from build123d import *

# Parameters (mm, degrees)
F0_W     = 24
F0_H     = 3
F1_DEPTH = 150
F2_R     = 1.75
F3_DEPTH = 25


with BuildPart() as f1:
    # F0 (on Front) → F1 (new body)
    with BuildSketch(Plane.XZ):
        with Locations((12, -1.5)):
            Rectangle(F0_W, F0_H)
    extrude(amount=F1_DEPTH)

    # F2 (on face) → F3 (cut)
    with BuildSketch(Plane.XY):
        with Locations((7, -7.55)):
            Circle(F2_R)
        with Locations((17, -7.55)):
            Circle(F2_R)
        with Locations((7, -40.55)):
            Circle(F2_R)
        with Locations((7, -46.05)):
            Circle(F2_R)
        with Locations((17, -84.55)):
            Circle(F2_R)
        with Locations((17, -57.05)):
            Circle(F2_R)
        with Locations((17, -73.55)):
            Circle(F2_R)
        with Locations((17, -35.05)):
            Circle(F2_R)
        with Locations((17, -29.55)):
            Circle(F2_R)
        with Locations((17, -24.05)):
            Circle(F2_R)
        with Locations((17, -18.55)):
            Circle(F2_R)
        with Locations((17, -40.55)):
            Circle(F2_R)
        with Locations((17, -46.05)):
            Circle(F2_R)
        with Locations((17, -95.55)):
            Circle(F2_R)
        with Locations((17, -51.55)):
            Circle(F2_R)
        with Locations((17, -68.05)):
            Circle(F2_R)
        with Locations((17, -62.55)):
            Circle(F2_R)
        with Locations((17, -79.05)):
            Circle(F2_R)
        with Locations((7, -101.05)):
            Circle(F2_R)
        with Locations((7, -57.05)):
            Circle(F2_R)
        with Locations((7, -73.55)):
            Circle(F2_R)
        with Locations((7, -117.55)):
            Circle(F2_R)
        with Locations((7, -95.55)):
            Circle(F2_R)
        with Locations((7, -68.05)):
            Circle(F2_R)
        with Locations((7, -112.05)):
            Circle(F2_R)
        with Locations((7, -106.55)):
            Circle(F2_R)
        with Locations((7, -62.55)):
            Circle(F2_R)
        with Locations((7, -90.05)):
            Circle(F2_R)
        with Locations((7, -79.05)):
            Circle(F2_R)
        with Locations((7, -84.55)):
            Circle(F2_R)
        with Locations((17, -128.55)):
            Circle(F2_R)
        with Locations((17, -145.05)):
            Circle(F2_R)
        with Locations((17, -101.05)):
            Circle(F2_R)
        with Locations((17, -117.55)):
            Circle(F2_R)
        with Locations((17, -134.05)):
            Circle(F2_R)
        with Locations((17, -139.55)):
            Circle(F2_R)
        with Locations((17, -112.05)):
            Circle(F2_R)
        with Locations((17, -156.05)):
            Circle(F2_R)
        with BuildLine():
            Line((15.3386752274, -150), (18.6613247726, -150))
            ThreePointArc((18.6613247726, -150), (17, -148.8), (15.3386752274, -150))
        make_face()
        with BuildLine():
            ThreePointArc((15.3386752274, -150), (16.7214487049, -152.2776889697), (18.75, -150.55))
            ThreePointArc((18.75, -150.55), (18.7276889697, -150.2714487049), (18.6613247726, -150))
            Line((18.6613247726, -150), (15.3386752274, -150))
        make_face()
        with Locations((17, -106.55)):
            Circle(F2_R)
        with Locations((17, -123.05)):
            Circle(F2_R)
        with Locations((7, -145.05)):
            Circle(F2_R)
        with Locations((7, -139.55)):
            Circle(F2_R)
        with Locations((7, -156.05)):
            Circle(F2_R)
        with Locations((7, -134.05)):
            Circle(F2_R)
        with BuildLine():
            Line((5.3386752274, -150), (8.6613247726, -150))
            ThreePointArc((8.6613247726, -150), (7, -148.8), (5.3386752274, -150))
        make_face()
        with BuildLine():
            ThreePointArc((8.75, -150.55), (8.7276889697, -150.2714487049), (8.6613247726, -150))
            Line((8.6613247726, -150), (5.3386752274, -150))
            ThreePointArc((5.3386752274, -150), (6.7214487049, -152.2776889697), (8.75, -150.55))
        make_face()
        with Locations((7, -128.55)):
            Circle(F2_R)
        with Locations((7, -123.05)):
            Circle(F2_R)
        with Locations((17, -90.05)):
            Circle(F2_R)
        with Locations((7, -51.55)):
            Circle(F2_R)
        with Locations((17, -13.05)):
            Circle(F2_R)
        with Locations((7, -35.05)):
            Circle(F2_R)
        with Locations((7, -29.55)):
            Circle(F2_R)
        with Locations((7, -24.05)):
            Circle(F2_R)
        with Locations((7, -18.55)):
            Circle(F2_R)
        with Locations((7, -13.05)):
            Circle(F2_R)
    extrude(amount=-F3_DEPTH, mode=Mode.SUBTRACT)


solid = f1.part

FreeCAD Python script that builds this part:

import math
import FreeCAD as App
import Part
import Sketcher

V = App.Vector

doc = App.newDocument("Part")
body = doc.addObject("PartDesign::Body", "Body")

# Sketch on XZ plane
sketch1 = body.newObject("Sketcher::SketchObject", "Sketch")
sketch1.AttachmentSupport = (doc.getObject("XZ_Plane"), [""])
sketch1.MapMode = "FlatFace"
sketch1.addGeometry([
    Part.LineSegment(V(0, 0, 0), V(0, -3, 0)),
    Part.LineSegment(V(0, -3, 0), V(24, -3, 0)),
    Part.LineSegment(V(24, -3, 0), V(24, 0, 0)),
    Part.LineSegment(V(24, 0, 0), V(0, 0, 0)),
], False)
sketch1.addConstraint([
    Sketcher.Constraint("Coincident", 0, 2, 1, 1),
    Sketcher.Constraint("Coincident", 1, 2, 2, 1),
    Sketcher.Constraint("Coincident", 2, 2, 3, 1),
    Sketcher.Constraint("Coincident", 3, 2, 0, 1),
    Sketcher.Constraint("Vertical", 0),
    Sketcher.Constraint("Horizontal", 1),
    Sketcher.Constraint("Vertical", 2),
    Sketcher.Constraint("Horizontal", 3),
    Sketcher.Constraint("Coincident", 3, 2, -1, 1),
    Sketcher.Constraint("DistanceX", 1, 1, 1, 2, 24.0),
    Sketcher.Constraint("DistanceY", 0, 2, 0, 1, 3.0),
])
pad1 = body.newObject("PartDesign::Pad", "Pad")
pad1.Profile = sketch1
pad1.Length = 150

# Sketch on XY plane
sketch2 = body.newObject("Sketcher::SketchObject", "Sketch001")
sketch2.AttachmentSupport = (doc.getObject("XY_Plane"), [""])
sketch2.MapMode = "FlatFace"
sketch2.addGeometry([
    Part.Circle(V(7, -7.5, 0), V(0, 0, 1), 1.8),  # 0
    Part.Circle(V(17, -7.5, 0), V(0, 0, 1), 1.8),  # 1
    Part.Circle(V(7, -40.5, 0), V(0, 0, 1), 1.8),  # 2
    Part.Circle(V(7, -46, 0), V(0, 0, 1), 1.8),  # 3
    Part.Circle(V(17, -84.5, 0), V(0, 0, 1), 1.8),  # 4
    Part.Circle(V(17, -57, 0), V(0, 0, 1), 1.8),  # 5
    Part.Circle(V(17, -73.5, 0), V(0, 0, 1), 1.8),  # 6
    Part.Circle(V(17, -35, 0), V(0, 0, 1), 1.8),  # 7
    Part.Circle(V(17, -29.6, 0), V(0, 0, 1), 1.8),  # 8
    Part.Circle(V(17, -24.1, 0), V(0, 0, 1), 1.8),  # 9
    Part.Circle(V(17, -18.6, 0), V(0, 0, 1), 1.8),  # 10
    Part.Circle(V(17, -40.5, 0), V(0, 0, 1), 1.8),  # 11
    Part.Circle(V(17, -46, 0), V(0, 0, 1), 1.8),  # 12
    Part.Circle(V(17, -95.5, 0), V(0, 0, 1), 1.8),  # 13
    Part.Circle(V(17, -51.5, 0), V(0, 0, 1), 1.8),  # 14
    Part.Circle(V(17, -68, 0), V(0, 0, 1), 1.8),  # 15
    Part.Circle(V(17, -62.5, 0), V(0, 0, 1), 1.8),  # 16
    Part.Circle(V(17, -79, 0), V(0, 0, 1), 1.8),  # 17
    Part.Circle(V(7, -101, 0), V(0, 0, 1), 1.8),  # 18
    Part.Circle(V(7, -57, 0), V(0, 0, 1), 1.8),  # 19
    Part.Circle(V(7, -73.5, 0), V(0, 0, 1), 1.8),  # 20
    Part.Circle(V(7, -117.5, 0), V(0, 0, 1), 1.8),  # 21
    Part.Circle(V(7, -95.5, 0), V(0, 0, 1), 1.8),  # 22
    Part.Circle(V(7, -68, 0), V(0, 0, 1), 1.8),  # 23
    Part.Circle(V(7, -112, 0), V(0, 0, 1), 1.8),  # 24
    Part.Circle(V(7, -106.5, 0), V(0, 0, 1), 1.8),  # 25
    Part.Circle(V(7, -62.5, 0), V(0, 0, 1), 1.8),  # 26
    Part.Circle(V(7, -90, 0), V(0, 0, 1), 1.8),  # 27
    Part.Circle(V(7, -79, 0), V(0, 0, 1), 1.8),  # 28
    Part.Circle(V(7, -84.5, 0), V(0, 0, 1), 1.8),  # 29
    Part.Circle(V(17, -128.6, 0), V(0, 0, 1), 1.8),  # 30
    Part.Circle(V(17, -145.1, 0), V(0, 0, 1), 1.8),  # 31
    Part.Circle(V(17, -101, 0), V(0, 0, 1), 1.8),  # 32
    Part.Circle(V(17, -117.5, 0), V(0, 0, 1), 1.8),  # 33
    Part.Circle(V(17, -134.1, 0), V(0, 0, 1), 1.8),  # 34
    Part.Circle(V(17, -139.6, 0), V(0, 0, 1), 1.8),  # 35
    Part.Circle(V(17, -112, 0), V(0, 0, 1), 1.8),  # 36
    Part.Circle(V(17, -156.1, 0), V(0, 0, 1), 1.8),  # 37
    Part.ArcOfCircle(Part.Circle(V(17, -150.6, 0), V(0, 0, 1), 1.8), math.radians(18), math.radians(162)),  # 38
    Part.ArcOfCircle(Part.Circle(V(17, -150.6, 0), V(0, 0, 1), 1.8), math.radians(162), math.radians(360)),  # 39
    Part.ArcOfCircle(Part.Circle(V(17, -150.6, 0), V(0, 0, 1), 1.8), math.radians(0), math.radians(18.32)),  # 40
    Part.Circle(V(17, -106.5, 0), V(0, 0, 1), 1.8),  # 41
    Part.Circle(V(17, -123, 0), V(0, 0, 1), 1.8),  # 42
    Part.Circle(V(7, -145.1, 0), V(0, 0, 1), 1.8),  # 43
    Part.Circle(V(7, -139.6, 0), V(0, 0, 1), 1.8),  # 44
    Part.Circle(V(7, -156.1, 0), V(0, 0, 1), 1.8),  # 45
    Part.Circle(V(7, -134.1, 0), V(0, 0, 1), 1.8),  # 46
    Part.ArcOfCircle(Part.Circle(V(7, -150.6, 0), V(0, 0, 1), 1.8), math.radians(18), math.radians(162)),  # 47
    Part.ArcOfCircle(Part.Circle(V(7, -150.6, 0), V(0, 0, 1), 1.8), math.radians(162), math.radians(360)),  # 48
    Part.ArcOfCircle(Part.Circle(V(7, -150.6, 0), V(0, 0, 1), 1.8), math.radians(0), math.radians(18.32)),  # 49
    Part.Circle(V(7, -128.6, 0), V(0, 0, 1), 1.8),  # 50
    Part.Circle(V(7, -123, 0), V(0, 0, 1), 1.8),  # 51
    Part.Circle(V(17, -90, 0), V(0, 0, 1), 1.8),  # 52
    Part.Circle(V(7, -51.5, 0), V(0, 0, 1), 1.8),  # 53
    Part.Circle(V(17, -13.1, 0), V(0, 0, 1), 1.8),  # 54
    Part.Circle(V(7, -35, 0), V(0, 0, 1), 1.8),  # 55
    Part.Circle(V(7, -29.6, 0), V(0, 0, 1), 1.8),  # 56
    Part.Circle(V(7, -24.1, 0), V(0, 0, 1), 1.8),  # 57
    Part.Circle(V(7, -18.6, 0), V(0, 0, 1), 1.8),  # 58
    Part.Circle(V(7, -13.1, 0), V(0, 0, 1), 1.8),  # 59
], False)
sketch2.addConstraint([
    Sketcher.Constraint("Tangent", 38, 2, 39, 1),
    Sketcher.Constraint("Tangent", 39, 2, 40, 1),
    Sketcher.Constraint("Tangent", 40, 2, 38, 1),
    Sketcher.Constraint("Tangent", 47, 2, 48, 1),
    Sketcher.Constraint("Tangent", 48, 2, 49, 1),
    Sketcher.Constraint("Tangent", 49, 2, 47, 1),
    Sketcher.Constraint("Equal", 0, 1),
    Sketcher.Constraint("Equal", 1, 2),
    Sketcher.Constraint("Equal", 2, 3),
    Sketcher.Constraint("Equal", 3, 4),
    Sketcher.Constraint("Equal", 4, 5),
    Sketcher.Constraint("Equal", 5, 6),
    Sketcher.Constraint("Equal", 6, 7),
    Sketcher.Constraint("Equal", 7, 8),
    Sketcher.Constraint("Equal", 8, 9),
    Sketcher.Constraint("Equal", 9, 10),
    Sketcher.Constraint("Equal", 10, 11),
    Sketcher.Constraint("Equal", 11, 12),
    Sketcher.Constraint("Equal", 12, 13),
    Sketcher.Constraint("Equal", 13, 14),
    Sketcher.Constraint("Equal", 14, 15),
    Sketcher.Constraint("Equal", 15, 16),
    Sketcher.Constraint("Equal", 16, 17),
    Sketcher.Constraint("Equal", 17, 18),
    Sketcher.Constraint("Equal", 18, 19),
    Sketcher.Constraint("Equal", 19, 20),
    Sketcher.Constraint("Equal", 20, 21),
    Sketcher.Constraint("Equal", 21, 22),
    Sketcher.Constraint("Equal", 22, 23),
    Sketcher.Constraint("Equal", 23, 24),
    Sketcher.Constraint("Equal", 24, 25),
    Sketcher.Constraint("Equal", 25, 26),
    Sketcher.Constraint("Equal", 26, 27),
    Sketcher.Constraint("Equal", 27, 28),
    Sketcher.Constraint("Equal", 28, 29),
    Sketcher.Constraint("Equal", 29, 30),
    Sketcher.Constraint("Equal", 30, 31),
    Sketcher.Constraint("Equal", 31, 32),
    Sketcher.Constraint("Equal", 32, 33),
    Sketcher.Constraint("Equal", 33, 34),
    Sketcher.Constraint("Equal", 34, 35),
    Sketcher.Constraint("Equal", 35, 36),
    Sketcher.Constraint("Equal", 36, 37),
    Sketcher.Constraint("Equal", 37, 38),
    Sketcher.Constraint("Equal", 40, 41),
    Sketcher.Constraint("Equal", 41, 42),
    Sketcher.Constraint("Equal", 42, 43),
    Sketcher.Constraint("Equal", 43, 44),
    Sketcher.Constraint("Equal", 44, 45),
    Sketcher.Constraint("Equal", 45, 46),
    Sketcher.Constraint("Equal", 46, 47),
    Sketcher.Constraint("Equal", 49, 50),
    Sketcher.Constraint("Equal", 50, 51),
    Sketcher.Constraint("Equal", 51, 52),
    Sketcher.Constraint("Equal", 52, 53),
    Sketcher.Constraint("Equal", 53, 54),
    Sketcher.Constraint("Equal", 54, 55),
    Sketcher.Constraint("Equal", 55, 56),
    Sketcher.Constraint("Equal", 56, 57),
    Sketcher.Constraint("Equal", 57, 58),
    Sketcher.Constraint("Equal", 58, 59),
    Sketcher.Constraint("Horizontal", 0, 3, 1, 3),
    Sketcher.Constraint("Horizontal", 2, 3, 11, 3),
    Sketcher.Constraint("Horizontal", 3, 3, 12, 3),
    Sketcher.Constraint("Horizontal", 5, 3, 19, 3),
    Sketcher.Constraint("Horizontal", 6, 3, 20, 3),
    Sketcher.Constraint("Horizontal", 13, 3, 22, 3),
    Sketcher.Constraint("Horizontal", 15, 3, 23, 3),
    Sketcher.Constraint("Horizontal", 16, 3, 26, 3),
    Sketcher.Constraint("Horizontal", 17, 3, 28, 3),
    Sketcher.Constraint("Horizontal", 4, 3, 29, 3),
    Sketcher.Constraint("Horizontal", 18, 3, 32, 3),
    Sketcher.Constraint("Horizontal", 21, 3, 33, 3),
    Sketcher.Constraint("Horizontal", 24, 3, 36, 3),
    Sketcher.Constraint("Horizontal", 25, 3, 41, 3),
    Sketcher.Constraint("Horizontal", 31, 3, 43, 3),
    Sketcher.Constraint("Horizontal", 35, 3, 44, 3),
    Sketcher.Constraint("Horizontal", 37, 3, 45, 3),
    Sketcher.Constraint("Horizontal", 34, 3, 46, 3),
    Sketcher.Constraint("Horizontal", 40, 3, 47, 3),
    Sketcher.Constraint("Horizontal", 30, 3, 50, 3),
    Sketcher.Constraint("Horizontal", 42, 3, 51, 3),
    Sketcher.Constraint("Horizontal", 27, 3, 52, 3),
    Sketcher.Constraint("Horizontal", 14, 3, 53, 3),
    Sketcher.Constraint("Horizontal", 7, 3, 55, 3),
    Sketcher.Constraint("Horizontal", 8, 3, 56, 3),
    Sketcher.Constraint("Horizontal", 9, 3, 57, 3),
    Sketcher.Constraint("Horizontal", 10, 3, 58, 3),
    Sketcher.Constraint("Horizontal", 54, 3, 59, 3),
    Sketcher.Constraint("Horizontal", 49, 3, 39, 2),
    Sketcher.Constraint("Horizontal", 38, 2, 40, 2),
    Sketcher.Constraint("Horizontal", 40, 2, 47, 2),
    Sketcher.Constraint("Horizontal", 39, 2, 48, 2),
    Sketcher.Constraint("Horizontal", 47, 2, 49, 2),
    Sketcher.Constraint("Vertical", 0, 3, 2, 3),
    Sketcher.Constraint("Vertical", 2, 3, 3, 3),
    Sketcher.Constraint("Vertical", 1, 3, 4, 3),
    Sketcher.Constraint("Vertical", 4, 3, 5, 3),
    Sketcher.Constraint("Vertical", 5, 3, 6, 3),
    Sketcher.Constraint("Vertical", 6, 3, 7, 3),
    Sketcher.Constraint("Vertical", 7, 3, 8, 3),
    Sketcher.Constraint("Vertical", 8, 3, 9, 3),
    Sketcher.Constraint("Vertical", 9, 3, 10, 3),
    Sketcher.Constraint("Vertical", 10, 3, 11, 3),
    Sketcher.Constraint("Vertical", 11, 3, 12, 3),
    Sketcher.Constraint("Vertical", 12, 3, 13, 3),
    Sketcher.Constraint("Vertical", 13, 3, 14, 3),
    Sketcher.Constraint("Vertical", 14, 3, 15, 3),
    Sketcher.Constraint("Vertical", 15, 3, 16, 3),
    Sketcher.Constraint("Vertical", 16, 3, 17, 3),
    Sketcher.Constraint("Vertical", 3, 3, 18, 3),
    Sketcher.Constraint("Vertical", 18, 3, 19, 3),
    Sketcher.Constraint("Vertical", 19, 3, 20, 3),
    Sketcher.Constraint("Vertical", 20, 3, 21, 3),
    Sketcher.Constraint("Vertical", 21, 3, 22, 3),
    Sketcher.Constraint("Vertical", 22, 3, 23, 3),
    Sketcher.Constraint("Vertical", 23, 3, 24, 3),
    Sketcher.Constraint("Vertical", 24, 3, 25, 3),
    Sketcher.Constraint("Vertical", 25, 3, 26, 3),
    Sketcher.Constraint("Vertical", 26, 3, 27, 3),
    Sketcher.Constraint("Vertical", 27, 3, 28, 3),
    Sketcher.Constraint("Vertical", 28, 3, 29, 3),
    Sketcher.Constraint("Vertical", 17, 3, 30, 3),
    Sketcher.Constraint("Vertical", 30, 3, 31, 3),
    Sketcher.Constraint("Vertical", 31, 3, 32, 3),
    Sketcher.Constraint("Vertical", 32, 3, 33, 3),
    Sketcher.Constraint("Vertical", 33, 3, 34, 3),
    Sketcher.Constraint("Vertical", 34, 3, 35, 3),
    Sketcher.Constraint("Vertical", 35, 3, 36, 3),
    Sketcher.Constraint("Vertical", 36, 3, 37, 3),
    Sketcher.Constraint("Vertical", 37, 3, 38, 3),
    Sketcher.Constraint("Vertical", 40, 3, 41, 3),
    Sketcher.Constraint("Vertical", 41, 3, 42, 3),
    Sketcher.Constraint("Vertical", 29, 3, 43, 3),
    Sketcher.Constraint("Vertical", 43, 3, 44, 3),
    Sketcher.Constraint("Vertical", 44, 3, 45, 3),
    Sketcher.Constraint("Vertical", 45, 3, 46, 3),
    Sketcher.Constraint("Vertical", 46, 3, 47, 3),
    Sketcher.Constraint("Vertical", 49, 3, 50, 3),
    Sketcher.Constraint("Vertical", 50, 3, 51, 3),
    Sketcher.Constraint("Vertical", 42, 3, 52, 3),
    Sketcher.Constraint("Vertical", 51, 3, 53, 3),
    Sketcher.Constraint("Vertical", 52, 3, 54, 3),
    Sketcher.Constraint("Vertical", 53, 3, 55, 3),
    Sketcher.Constraint("Vertical", 55, 3, 56, 3),
    Sketcher.Constraint("Vertical", 56, 3, 57, 3),
    Sketcher.Constraint("Vertical", 57, 3, 58, 3),
    Sketcher.Constraint("Vertical", 58, 3, 59, 3),
    Sketcher.Constraint("Diameter", 0, 3.5),
    Sketcher.Constraint("DistanceX", -1, 1, 0, 3, 7.0),
    Sketcher.Constraint("DistanceX", -1, 1, 1, 3, 17.0),
    Sketcher.Constraint("DistanceY", 38, 2, -1, 1, 150.0),
    Sketcher.Constraint("DistanceY", 0, 3, -1, 1, 7.55),
    Sketcher.Constraint("DistanceY", 2, 3, -1, 1, 40.55),
    Sketcher.Constraint("DistanceY", 3, 3, -1, 1, 46.05),
    Sketcher.Constraint("DistanceY", 4, 3, -1, 1, 84.55),
    Sketcher.Constraint("DistanceY", 5, 3, -1, 1, 57.05),
    Sketcher.Constraint("DistanceY", 6, 3, -1, 1, 73.55),
    Sketcher.Constraint("DistanceY", 7, 3, -1, 1, 35.05),
    Sketcher.Constraint("DistanceY", 8, 3, -1, 1, 29.55),
    Sketcher.Constraint("DistanceY", 9, 3, -1, 1, 24.05),
    Sketcher.Constraint("DistanceY", 10, 3, -1, 1, 18.55),
    Sketcher.Constraint("DistanceY", 13, 3, -1, 1, 95.55),
    Sketcher.Constraint("DistanceY", 14, 3, -1, 1, 51.55),
    Sketcher.Constraint("DistanceY", 15, 3, -1, 1, 68.05),
    Sketcher.Constraint("DistanceY", 16, 3, -1, 1, 62.55),
    Sketcher.Constraint("DistanceY", 17, 3, -1, 1, 79.05),
    Sketcher.Constraint("DistanceY", 18, 3, -1, 1, 101.05),
    Sketcher.Constraint("DistanceY", 21, 3, -1, 1, 117.55),
    Sketcher.Constraint("DistanceY", 24, 3, -1, 1, 112.05),
    Sketcher.Constraint("DistanceY", 25, 3, -1, 1, 106.55),
    Sketcher.Constraint("DistanceY", 27, 3, -1, 1, 90.05),
    Sketcher.Constraint("DistanceY", 30, 3, -1, 1, 128.55),
    Sketcher.Constraint("DistanceY", 31, 3, -1, 1, 145.05),
    Sketcher.Constraint("DistanceY", 34, 3, -1, 1, 134.05),
    Sketcher.Constraint("DistanceY", 35, 3, -1, 1, 139.55),
    Sketcher.Constraint("DistanceY", 37, 3, -1, 1, 156.05),
    Sketcher.Constraint("DistanceY", 38, 3, -1, 1, 150.55),
    Sketcher.Constraint("DistanceY", 42, 3, -1, 1, 123.05),
    Sketcher.Constraint("DistanceY", 54, 3, -1, 1, 13.05),
])
pocket1 = body.newObject("PartDesign::Pocket", "Pocket")
pocket1.Profile = sketch2
pocket1.Length = 25

doc.recompute()
